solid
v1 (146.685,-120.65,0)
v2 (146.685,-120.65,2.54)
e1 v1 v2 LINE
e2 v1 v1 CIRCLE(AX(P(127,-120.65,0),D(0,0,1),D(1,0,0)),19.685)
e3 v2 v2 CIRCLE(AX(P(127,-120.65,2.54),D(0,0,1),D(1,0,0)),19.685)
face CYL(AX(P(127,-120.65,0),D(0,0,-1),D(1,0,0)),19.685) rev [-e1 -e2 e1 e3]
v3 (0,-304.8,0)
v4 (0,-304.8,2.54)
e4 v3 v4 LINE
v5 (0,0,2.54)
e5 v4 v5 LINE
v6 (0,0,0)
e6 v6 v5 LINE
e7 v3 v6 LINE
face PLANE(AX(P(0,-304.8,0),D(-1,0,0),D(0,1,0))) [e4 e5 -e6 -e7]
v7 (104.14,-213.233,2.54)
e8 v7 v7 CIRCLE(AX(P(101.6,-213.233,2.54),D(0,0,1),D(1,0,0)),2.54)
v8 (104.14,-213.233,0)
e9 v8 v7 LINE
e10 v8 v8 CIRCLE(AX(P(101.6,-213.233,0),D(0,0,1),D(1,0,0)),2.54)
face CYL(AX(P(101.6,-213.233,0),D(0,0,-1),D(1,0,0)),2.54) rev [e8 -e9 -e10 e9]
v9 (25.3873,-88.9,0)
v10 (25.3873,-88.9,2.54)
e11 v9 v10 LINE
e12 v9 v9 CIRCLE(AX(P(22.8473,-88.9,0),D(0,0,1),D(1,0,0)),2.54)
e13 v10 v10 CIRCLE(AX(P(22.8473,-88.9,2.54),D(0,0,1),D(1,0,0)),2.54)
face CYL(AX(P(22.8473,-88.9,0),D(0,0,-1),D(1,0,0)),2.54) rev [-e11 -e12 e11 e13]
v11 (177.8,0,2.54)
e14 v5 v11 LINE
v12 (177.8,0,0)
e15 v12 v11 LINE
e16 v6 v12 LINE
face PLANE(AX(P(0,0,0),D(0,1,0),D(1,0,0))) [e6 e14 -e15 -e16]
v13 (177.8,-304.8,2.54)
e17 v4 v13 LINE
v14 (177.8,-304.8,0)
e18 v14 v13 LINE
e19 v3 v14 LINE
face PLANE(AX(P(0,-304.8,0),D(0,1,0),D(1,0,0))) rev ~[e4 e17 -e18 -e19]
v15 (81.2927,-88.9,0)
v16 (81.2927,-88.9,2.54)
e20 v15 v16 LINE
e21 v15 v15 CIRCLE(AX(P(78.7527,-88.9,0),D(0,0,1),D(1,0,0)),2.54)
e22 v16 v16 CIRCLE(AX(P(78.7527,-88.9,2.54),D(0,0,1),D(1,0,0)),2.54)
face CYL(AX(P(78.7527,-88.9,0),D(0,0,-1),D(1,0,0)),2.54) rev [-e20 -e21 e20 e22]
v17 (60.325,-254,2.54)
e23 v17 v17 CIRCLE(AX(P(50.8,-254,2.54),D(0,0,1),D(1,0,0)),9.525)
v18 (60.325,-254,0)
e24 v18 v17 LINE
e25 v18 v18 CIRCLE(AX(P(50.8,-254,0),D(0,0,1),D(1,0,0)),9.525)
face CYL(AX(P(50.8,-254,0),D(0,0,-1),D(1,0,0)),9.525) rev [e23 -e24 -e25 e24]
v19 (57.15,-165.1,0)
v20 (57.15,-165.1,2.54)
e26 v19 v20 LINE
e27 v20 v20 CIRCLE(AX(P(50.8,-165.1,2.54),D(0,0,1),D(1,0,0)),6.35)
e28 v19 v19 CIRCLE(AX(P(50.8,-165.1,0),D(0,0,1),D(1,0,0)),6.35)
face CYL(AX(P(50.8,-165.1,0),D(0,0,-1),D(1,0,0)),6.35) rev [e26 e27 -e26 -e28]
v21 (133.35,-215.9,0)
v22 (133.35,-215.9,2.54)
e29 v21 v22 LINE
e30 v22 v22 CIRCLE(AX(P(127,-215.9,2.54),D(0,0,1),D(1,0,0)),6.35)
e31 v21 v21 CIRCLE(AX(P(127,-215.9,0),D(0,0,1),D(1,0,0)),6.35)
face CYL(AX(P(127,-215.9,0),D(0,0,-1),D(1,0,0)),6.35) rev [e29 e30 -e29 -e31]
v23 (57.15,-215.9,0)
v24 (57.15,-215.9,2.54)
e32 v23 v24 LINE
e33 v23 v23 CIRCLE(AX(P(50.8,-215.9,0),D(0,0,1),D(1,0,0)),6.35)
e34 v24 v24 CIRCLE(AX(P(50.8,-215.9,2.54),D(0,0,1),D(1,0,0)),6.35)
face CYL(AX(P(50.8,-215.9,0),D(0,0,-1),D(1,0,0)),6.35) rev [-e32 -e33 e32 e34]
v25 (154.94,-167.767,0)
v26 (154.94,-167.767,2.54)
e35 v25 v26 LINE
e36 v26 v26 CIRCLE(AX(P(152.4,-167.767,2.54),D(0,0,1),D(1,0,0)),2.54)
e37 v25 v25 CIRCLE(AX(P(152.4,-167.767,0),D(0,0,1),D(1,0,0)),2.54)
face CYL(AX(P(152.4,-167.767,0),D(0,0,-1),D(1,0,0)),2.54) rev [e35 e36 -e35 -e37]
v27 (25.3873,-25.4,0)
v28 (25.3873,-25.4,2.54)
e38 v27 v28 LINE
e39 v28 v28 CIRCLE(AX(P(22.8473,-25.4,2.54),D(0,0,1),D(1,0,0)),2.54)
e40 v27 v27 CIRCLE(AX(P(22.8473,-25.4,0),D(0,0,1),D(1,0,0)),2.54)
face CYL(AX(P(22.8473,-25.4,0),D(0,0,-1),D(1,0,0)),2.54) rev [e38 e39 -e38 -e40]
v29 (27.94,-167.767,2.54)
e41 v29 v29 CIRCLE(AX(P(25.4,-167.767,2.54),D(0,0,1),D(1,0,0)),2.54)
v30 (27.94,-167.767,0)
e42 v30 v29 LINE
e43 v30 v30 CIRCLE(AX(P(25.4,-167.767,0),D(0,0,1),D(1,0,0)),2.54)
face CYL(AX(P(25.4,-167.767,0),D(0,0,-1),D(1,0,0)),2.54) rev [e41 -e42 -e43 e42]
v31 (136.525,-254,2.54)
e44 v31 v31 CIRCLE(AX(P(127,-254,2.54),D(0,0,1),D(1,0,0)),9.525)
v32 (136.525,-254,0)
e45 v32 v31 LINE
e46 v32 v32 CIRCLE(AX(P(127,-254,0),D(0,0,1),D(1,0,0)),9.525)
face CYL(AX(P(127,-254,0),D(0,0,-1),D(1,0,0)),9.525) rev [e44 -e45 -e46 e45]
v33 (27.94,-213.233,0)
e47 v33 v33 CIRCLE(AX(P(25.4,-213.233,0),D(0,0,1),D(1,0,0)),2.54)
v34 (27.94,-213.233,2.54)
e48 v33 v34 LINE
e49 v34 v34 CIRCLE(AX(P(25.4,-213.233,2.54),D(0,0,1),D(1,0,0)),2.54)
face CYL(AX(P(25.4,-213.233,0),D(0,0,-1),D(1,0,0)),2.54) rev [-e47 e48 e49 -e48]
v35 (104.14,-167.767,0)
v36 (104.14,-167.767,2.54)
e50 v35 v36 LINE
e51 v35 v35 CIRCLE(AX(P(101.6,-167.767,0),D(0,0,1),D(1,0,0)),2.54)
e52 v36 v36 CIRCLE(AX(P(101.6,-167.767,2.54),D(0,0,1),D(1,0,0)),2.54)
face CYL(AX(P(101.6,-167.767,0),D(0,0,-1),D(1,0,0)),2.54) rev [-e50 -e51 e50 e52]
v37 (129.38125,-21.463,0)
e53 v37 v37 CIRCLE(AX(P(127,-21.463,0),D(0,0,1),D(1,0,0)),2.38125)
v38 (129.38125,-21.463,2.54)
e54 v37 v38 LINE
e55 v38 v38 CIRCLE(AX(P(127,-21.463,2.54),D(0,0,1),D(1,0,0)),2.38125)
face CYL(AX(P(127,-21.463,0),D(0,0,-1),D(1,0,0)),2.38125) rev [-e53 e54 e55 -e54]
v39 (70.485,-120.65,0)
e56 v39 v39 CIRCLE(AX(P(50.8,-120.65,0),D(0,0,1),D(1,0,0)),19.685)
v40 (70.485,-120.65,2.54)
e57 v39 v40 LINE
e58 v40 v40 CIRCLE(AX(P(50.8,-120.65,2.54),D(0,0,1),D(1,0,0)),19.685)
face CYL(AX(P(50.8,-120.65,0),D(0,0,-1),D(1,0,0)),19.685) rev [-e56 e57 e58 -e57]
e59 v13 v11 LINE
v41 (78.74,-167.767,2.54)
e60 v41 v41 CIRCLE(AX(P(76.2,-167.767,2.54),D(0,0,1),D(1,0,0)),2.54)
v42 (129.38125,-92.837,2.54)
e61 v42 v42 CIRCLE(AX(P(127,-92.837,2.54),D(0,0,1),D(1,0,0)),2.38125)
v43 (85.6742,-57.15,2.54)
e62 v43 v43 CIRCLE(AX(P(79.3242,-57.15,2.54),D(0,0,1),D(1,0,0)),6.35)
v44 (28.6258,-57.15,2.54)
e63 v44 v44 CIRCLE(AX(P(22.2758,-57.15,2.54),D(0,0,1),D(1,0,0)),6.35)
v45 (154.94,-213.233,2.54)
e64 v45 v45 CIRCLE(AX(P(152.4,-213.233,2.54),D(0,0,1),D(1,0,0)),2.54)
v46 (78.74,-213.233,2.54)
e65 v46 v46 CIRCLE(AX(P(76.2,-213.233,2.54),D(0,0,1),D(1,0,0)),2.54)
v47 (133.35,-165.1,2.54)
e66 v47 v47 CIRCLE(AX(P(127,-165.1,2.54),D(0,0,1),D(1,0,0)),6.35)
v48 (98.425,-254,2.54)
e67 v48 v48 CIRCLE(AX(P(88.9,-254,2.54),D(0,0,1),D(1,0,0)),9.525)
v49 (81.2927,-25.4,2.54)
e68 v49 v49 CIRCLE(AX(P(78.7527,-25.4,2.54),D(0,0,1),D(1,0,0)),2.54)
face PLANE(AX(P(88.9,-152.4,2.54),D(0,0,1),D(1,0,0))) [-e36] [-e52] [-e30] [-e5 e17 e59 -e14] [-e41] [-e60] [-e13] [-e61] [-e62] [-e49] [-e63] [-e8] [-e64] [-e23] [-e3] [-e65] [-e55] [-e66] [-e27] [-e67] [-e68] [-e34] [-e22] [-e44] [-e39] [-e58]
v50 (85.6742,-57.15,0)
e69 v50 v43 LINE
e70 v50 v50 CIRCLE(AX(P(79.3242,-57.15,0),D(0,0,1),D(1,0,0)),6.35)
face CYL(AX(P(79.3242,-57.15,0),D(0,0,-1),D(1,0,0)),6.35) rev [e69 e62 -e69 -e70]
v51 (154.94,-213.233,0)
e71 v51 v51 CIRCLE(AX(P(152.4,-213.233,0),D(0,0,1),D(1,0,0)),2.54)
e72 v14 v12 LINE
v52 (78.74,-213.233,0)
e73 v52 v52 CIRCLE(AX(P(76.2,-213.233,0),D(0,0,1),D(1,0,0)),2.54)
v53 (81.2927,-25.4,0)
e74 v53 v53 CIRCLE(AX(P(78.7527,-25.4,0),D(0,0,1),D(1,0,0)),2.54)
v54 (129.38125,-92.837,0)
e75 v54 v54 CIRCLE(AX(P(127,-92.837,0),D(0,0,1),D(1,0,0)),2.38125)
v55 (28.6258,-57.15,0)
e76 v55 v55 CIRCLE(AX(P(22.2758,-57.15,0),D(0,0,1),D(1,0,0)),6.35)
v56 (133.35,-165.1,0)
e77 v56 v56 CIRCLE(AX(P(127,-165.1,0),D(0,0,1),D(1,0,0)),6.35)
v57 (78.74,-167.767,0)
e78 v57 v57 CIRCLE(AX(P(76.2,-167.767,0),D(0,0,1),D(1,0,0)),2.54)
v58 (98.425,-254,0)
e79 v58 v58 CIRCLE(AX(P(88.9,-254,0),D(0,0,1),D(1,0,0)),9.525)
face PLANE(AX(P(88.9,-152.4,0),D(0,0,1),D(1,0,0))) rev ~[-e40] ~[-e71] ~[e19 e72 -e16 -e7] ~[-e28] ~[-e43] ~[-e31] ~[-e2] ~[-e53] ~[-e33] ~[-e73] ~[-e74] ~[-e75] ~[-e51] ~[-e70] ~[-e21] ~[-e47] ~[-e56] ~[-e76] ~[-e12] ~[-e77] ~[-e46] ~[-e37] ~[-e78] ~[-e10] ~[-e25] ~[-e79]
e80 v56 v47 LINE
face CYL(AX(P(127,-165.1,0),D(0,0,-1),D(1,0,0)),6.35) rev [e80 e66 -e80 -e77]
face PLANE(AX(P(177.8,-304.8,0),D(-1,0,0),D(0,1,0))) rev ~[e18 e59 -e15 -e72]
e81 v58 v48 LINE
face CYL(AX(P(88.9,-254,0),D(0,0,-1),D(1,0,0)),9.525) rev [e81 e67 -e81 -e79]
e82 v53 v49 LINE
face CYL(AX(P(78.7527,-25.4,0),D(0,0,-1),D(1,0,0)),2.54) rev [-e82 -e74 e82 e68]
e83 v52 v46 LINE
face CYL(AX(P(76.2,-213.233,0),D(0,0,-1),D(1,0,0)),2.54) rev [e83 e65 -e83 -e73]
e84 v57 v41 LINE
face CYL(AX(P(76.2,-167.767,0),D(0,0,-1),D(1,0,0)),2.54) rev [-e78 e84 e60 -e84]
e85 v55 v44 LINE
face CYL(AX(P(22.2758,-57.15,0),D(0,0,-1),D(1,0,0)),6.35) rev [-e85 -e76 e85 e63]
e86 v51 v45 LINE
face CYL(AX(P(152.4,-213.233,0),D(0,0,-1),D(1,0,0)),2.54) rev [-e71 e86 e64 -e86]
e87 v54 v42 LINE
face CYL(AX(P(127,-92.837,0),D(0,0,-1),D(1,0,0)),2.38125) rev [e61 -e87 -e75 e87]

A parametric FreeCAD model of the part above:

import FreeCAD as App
import Part
import Sketcher
from FreeCAD import Vector
Q = App.Units.Quantity

doc = App.newDocument("Part")
body = doc.addObject("PartDesign::Body", "Body")

# Sketch on XY plane
sketch1 = body.newObject("Sketcher::SketchObject", "Sketch")
sketch1.AttachmentSupport = (doc.getObject("XY_Plane"), [""])
sketch1.MapMode = "FlatFace"
sketch1.addGeometry(Part.LineSegment(Vector(0, 0, 0), Vector(0, -304.8, 0)), False)
sketch1.addGeometry(Part.LineSegment(Vector(0, -304.8, 0), Vector(177.8, -304.8, 0)), False)
sketch1.addGeometry(Part.LineSegment(Vector(177.8, -304.8, 0), Vector(177.8, 0, 0)), False)
sketch1.addGeometry(Part.LineSegment(Vector(177.8, 0, 0), Vector(0, 0, 0)), False)
sketch1.addGeometry(Part.Circle(Vector(25.4, -213.2, 0), Vector(0, 0, 1), 2.5), False)
sketch1.addGeometry(Part.Circle(Vector(50.8, -254, 0), Vector(0, 0, 1), 9.5), False)
sketch1.addGeometry(Part.Circle(Vector(50.8, -215.9, 0), Vector(0, 0, 1), 6.3), False)
sketch1.addGeometry(Part.Circle(Vector(76.2, -213.2, 0), Vector(0, 0, 1), 2.5), False)
sketch1.addGeometry(Part.Circle(Vector(25.4, -167.8, 0), Vector(0, 0, 1), 2.5), False)
sketch1.addGeometry(Part.Circle(Vector(50.8, -165.1, 0), Vector(0, 0, 1), 6.3), False)
sketch1.addGeometry(Part.Circle(Vector(76.2, -167.8, 0), Vector(0, 0, 1), 2.5), False)
sketch1.addGeometry(Part.Circle(Vector(88.9, -254, 0), Vector(0, 0, 1), 9.5), False)
sketch1.addGeometry(Part.Circle(Vector(101.6, -213.2, 0), Vector(0, 0, 1), 2.5), False)
sketch1.addGeometry(Part.Circle(Vector(127, -254, 0), Vector(0, 0, 1), 9.5), False)
sketch1.addGeometry(Part.Circle(Vector(127, -215.9, 0), Vector(0, 0, 1), 6.3), False)
sketch1.addGeometry(Part.Circle(Vector(152.4, -213.2, 0), Vector(0, 0, 1), 2.5), False)
sketch1.addGeometry(Part.Circle(Vector(101.6, -167.8, 0), Vector(0, 0, 1), 2.5), False)
sketch1.addGeometry(Part.Circle(Vector(127, -165.1, 0), Vector(0, 0, 1), 6.3), False)
sketch1.addGeometry(Part.Circle(Vector(152.4, -167.8, 0), Vector(0, 0, 1), 2.5), False)
sketch1.addGeometry(Part.Circle(Vector(22.8, -88.9, 0), Vector(0, 0, 1), 2.5), False)
sketch1.addGeometry(Part.Circle(Vector(50.8, -120.7, 0), Vector(0, 0, 1), 19.7), False)
sketch1.addGeometry(Part.Circle(Vector(78.8, -88.9, 0), Vector(0, 0, 1), 2.5), False)
sketch1.addGeometry(Part.Circle(Vector(22.3, -57.1, 0), Vector(0, 0, 1), 6.3), False)
sketch1.addGeometry(Part.Circle(Vector(22.8, -25.4, 0), Vector(0, 0, 1), 2.5), False)
sketch1.addGeometry(Part.Circle(Vector(79.3, -57.1, 0), Vector(0, 0, 1), 6.3), False)
sketch1.addGeometry(Part.Circle(Vector(78.8, -25.4, 0), Vector(0, 0, 1), 2.5), False)
sketch1.addGeometry(Part.Circle(Vector(127, -120.7, 0), Vector(0, 0, 1), 19.7), False)
sketch1.addGeometry(Part.Circle(Vector(127, -92.8, 0), Vector(0, 0, 1), 2.4), False)
sketch1.addGeometry(Part.Circle(Vector(127, -21.5, 0), Vector(0, 0, 1), 2.4), False)
sketch1.addConstraint(Sketcher.Constraint("Coincident", 0, 2, 1, 1))
sketch1.addConstraint(Sketcher.Constraint("Coincident", 1, 2, 2, 1))
sketch1.addConstraint(Sketcher.Constraint("Coincident", 2, 2, 3, 1))
sketch1.addConstraint(Sketcher.Constraint("Coincident", 3, 2, 0, 1))
sketch1.addConstraint(Sketcher.Constraint("Vertical", 0))
sketch1.addConstraint(Sketcher.Constraint("Horizontal", 1))
sketch1.addConstraint(Sketcher.Constraint("Vertical", 2))
sketch1.addConstraint(Sketcher.Constraint("Horizontal", 3))
sketch1.addConstraint(Sketcher.Constraint("Coincident", 3, 2, -1, 1))
sketch1.addConstraint(Sketcher.Constraint("Equal", 4, 7))
sketch1.addConstraint(Sketcher.Constraint("Equal", 7, 8))
sketch1.addConstraint(Sketcher.Constraint("Equal", 6, 9))
sketch1.addConstraint(Sketcher.Constraint("Equal", 8, 10))
sketch1.addConstraint(Sketcher.Constraint("Equal", 5, 11))
sketch1.addConstraint(Sketcher.Constraint("Equal", 10, 12))
sketch1.addConstraint(Sketcher.Constraint("Equal", 11, 13))
sketch1.addConstraint(Sketcher.Constraint("Equal", 9, 14))
sketch1.addConstraint(Sketcher.Constraint("Equal", 12, 15))
sketch1.addConstraint(Sketcher.Constraint("Equal", 15, 16))
sketch1.addConstraint(Sketcher.Constraint("Equal", 14, 17))
sketch1.addConstraint(Sketcher.Constraint("Equal", 16, 18))
sketch1.addConstraint(Sketcher.Constraint("Equal", 18, 19))
sketch1.addConstraint(Sketcher.Constraint("Equal", 19, 21))
sketch1.addConstraint(Sketcher.Constraint("Equal", 17, 22))
sketch1.addConstraint(Sketcher.Constraint("Equal", 21, 23))
sketch1.addConstraint(Sketcher.Constraint("Equal", 22, 24))
sketch1.addConstraint(Sketcher.Constraint("Equal", 23, 25))
sketch1.addConstraint(Sketcher.Constraint("Equal", 20, 26))
sketch1.addConstraint(Sketcher.Constraint("Equal", 27, 28))
sketch1.addConstraint(Sketcher.Constraint("Horizontal", 4, 3, 7, 3))
sketch1.addConstraint(Sketcher.Constraint("Horizontal", 8, 3, 10, 3))
sketch1.addConstraint(Sketcher.Constraint("Horizontal", 5, 3, 11, 3))
sketch1.addConstraint(Sketcher.Constraint("Horizontal", 7, 3, 12, 3))
sketch1.addConstraint(Sketcher.Constraint("Horizontal", 11, 3, 13, 3))
sketch1.addConstraint(Sketcher.Constraint("Horizontal", 6, 3, 14, 3))
sketch1.addConstraint(Sketcher.Constraint("Horizontal", 12, 3, 15, 3))
sketch1.addConstraint(Sketcher.Constraint("Horizontal", 10, 3, 16, 3))
sketch1.addConstraint(Sketcher.Constraint("Horizontal", 9, 3, 17, 3))
sketch1.addConstraint(Sketcher.Constraint("Horizontal", 16, 3, 18, 3))
sketch1.addConstraint(Sketcher.Constraint("Horizontal", 19, 3, 21, 3))
sketch1.addConstraint(Sketcher.Constraint("Horizontal", 22, 3, 24, 3))
sketch1.addConstraint(Sketcher.Constraint("Horizontal", 23, 3, 25, 3))
sketch1.addConstraint(Sketcher.Constraint("Horizontal", 20, 3, 26, 3))
sketch1.addConstraint(Sketcher.Constraint("Vertical", 5, 3, 6, 3))
sketch1.addConstraint(Sketcher.Constraint("Vertical", 4, 3, 8, 3))
sketch1.addConstraint(Sketcher.Constraint("Vertical", 6, 3, 9, 3))
sketch1.addConstraint(Sketcher.Constraint("Vertical", 7, 3, 10, 3))
sketch1.addConstraint(Sketcher.Constraint("Vertical", 13, 3, 14, 3))
sketch1.addConstraint(Sketcher.Constraint("Vertical", 12, 3, 16, 3))
sketch1.addConstraint(Sketcher.Constraint("Vertical", 14, 3, 17, 3))
sketch1.addConstraint(Sketcher.Constraint("Vertical", 15, 3, 18, 3))
sketch1.addConstraint(Sketcher.Constraint("Vertical", 9, 3, 20, 3))
sketch1.addConstraint(Sketcher.Constraint("Vertical", 19, 3, 23, 3))
sketch1.addConstraint(Sketcher.Constraint("Vertical", 21, 3, 25, 3))
sketch1.addConstraint(Sketcher.Constraint("Vertical", 17, 3, 26, 3))
sketch1.addConstraint(Sketcher.Constraint("Vertical", 26, 3, 27, 3))
sketch1.addConstraint(Sketcher.Constraint("Vertical", 27, 3, 28, 3))
sketch1.addConstraint(Sketcher.Constraint("Diameter", 4, Q("0.2 in")))
sketch1.addConstraint(Sketcher.Constraint("Diameter", 6, Q("0.5 in")))
sketch1.addConstraint(Sketcher.Constraint("Diameter", 5, Q("0.75 in")))
sketch1.addConstraint(Sketcher.Constraint("Diameter", 20, Q("1.55 in")))
sketch1.addConstraint(Sketcher.Constraint("DistanceX", 1, 1, 1, 2, Q("7 in")))
sketch1.addConstraint(Sketcher.Constraint("DistanceY", 0, 2, 0, 1, Q("12 in")))
sketch1.addConstraint(Sketcher.Constraint("Diameter", 27, Q("0.1875 in")))
sketch1.addConstraint(Sketcher.Constraint("DistanceX", -1, 1, 4, 3, Q("1 in")))
sketch1.addConstraint(Sketcher.Constraint("DistanceX", -1, 1, 5, 3, Q("2 in")))
sketch1.addConstraint(Sketcher.Constraint("DistanceY", 5, 3, -1, 1, Q("10 in")))
sketch1.addConstraint(Sketcher.Constraint("DistanceX", -1, 1, 7, 3, Q("3 in")))
sketch1.addConstraint(Sketcher.Constraint("DistanceX", -1, 1, 12, 3, Q("4 in")))
sketch1.addConstraint(Sketcher.Constraint("DistanceX", -1, 1, 13, 3, Q("5 in")))
sketch1.addConstraint(Sketcher.Constraint("DistanceX", -1, 1, 15, 3, Q("6 in")))
sketch1.addConstraint(Sketcher.Constraint("DistanceY", 23, 3, -1, 1, Q("1 in")))
sketch1.addConstraint(Sketcher.Constraint("DistanceY", 6, 3, 9, 3, Q("2 in")))
sketch1.addConstraint(Sketcher.Constraint("DistanceY", 9, 3, 19, 3, Q("3 in")))
sketch1.addConstraint(Sketcher.Constraint("DistanceY", 6, 3, -1, 1, Q("8.5 in")))
sketch1.addConstraint(Sketcher.Constraint("DistanceX", -1, 1, 11, 3, Q("3.5 in")))
sketch1.addConstraint(Sketcher.Constraint("DistanceY", 20, 3, 22, 3, Q("2.5 in")))
sketch1.addConstraint(Sketcher.Constraint("DistanceY", 20, 3, -1, 1, Q("4.75 in")))
sketch1.addConstraint(Sketcher.Constraint("DistanceY", 4, 3, 8, 3, Q("1.79 in")))
sketch1.addConstraint(Sketcher.Constraint("DistanceY", 16, 3, 27, 3, Q("2.95 in")))
sketch1.addConstraint(Sketcher.Constraint("DistanceY", 27, 3, 28, 3, Q("2.81 in")))
sketch1.addConstraint(Sketcher.Constraint("DistanceY", 4, 3, -1, 1, Q("8.395 in")))
sketch1.addConstraint(Sketcher.Constraint("DistanceX", -1, 1, 22, 3, Q("0.877 in")))
sketch1.addConstraint(Sketcher.Constraint("DistanceX", -1, 1, 24, 3, Q("3.123 in")))
sketch1.addConstraint(Sketcher.Constraint("DistanceX", 19, 3, 21, 3, Q("2.201 in")))
sketch1.addConstraint(Sketcher.Constraint("DistanceX", -1, 1, 19, 3, Q("0.8995 in")))
pad1 = body.newObject("PartDesign::Pad", "Pad")
pad1.Profile = sketch1
pad1.Length = Q("0.1 in")

doc.recompute()
